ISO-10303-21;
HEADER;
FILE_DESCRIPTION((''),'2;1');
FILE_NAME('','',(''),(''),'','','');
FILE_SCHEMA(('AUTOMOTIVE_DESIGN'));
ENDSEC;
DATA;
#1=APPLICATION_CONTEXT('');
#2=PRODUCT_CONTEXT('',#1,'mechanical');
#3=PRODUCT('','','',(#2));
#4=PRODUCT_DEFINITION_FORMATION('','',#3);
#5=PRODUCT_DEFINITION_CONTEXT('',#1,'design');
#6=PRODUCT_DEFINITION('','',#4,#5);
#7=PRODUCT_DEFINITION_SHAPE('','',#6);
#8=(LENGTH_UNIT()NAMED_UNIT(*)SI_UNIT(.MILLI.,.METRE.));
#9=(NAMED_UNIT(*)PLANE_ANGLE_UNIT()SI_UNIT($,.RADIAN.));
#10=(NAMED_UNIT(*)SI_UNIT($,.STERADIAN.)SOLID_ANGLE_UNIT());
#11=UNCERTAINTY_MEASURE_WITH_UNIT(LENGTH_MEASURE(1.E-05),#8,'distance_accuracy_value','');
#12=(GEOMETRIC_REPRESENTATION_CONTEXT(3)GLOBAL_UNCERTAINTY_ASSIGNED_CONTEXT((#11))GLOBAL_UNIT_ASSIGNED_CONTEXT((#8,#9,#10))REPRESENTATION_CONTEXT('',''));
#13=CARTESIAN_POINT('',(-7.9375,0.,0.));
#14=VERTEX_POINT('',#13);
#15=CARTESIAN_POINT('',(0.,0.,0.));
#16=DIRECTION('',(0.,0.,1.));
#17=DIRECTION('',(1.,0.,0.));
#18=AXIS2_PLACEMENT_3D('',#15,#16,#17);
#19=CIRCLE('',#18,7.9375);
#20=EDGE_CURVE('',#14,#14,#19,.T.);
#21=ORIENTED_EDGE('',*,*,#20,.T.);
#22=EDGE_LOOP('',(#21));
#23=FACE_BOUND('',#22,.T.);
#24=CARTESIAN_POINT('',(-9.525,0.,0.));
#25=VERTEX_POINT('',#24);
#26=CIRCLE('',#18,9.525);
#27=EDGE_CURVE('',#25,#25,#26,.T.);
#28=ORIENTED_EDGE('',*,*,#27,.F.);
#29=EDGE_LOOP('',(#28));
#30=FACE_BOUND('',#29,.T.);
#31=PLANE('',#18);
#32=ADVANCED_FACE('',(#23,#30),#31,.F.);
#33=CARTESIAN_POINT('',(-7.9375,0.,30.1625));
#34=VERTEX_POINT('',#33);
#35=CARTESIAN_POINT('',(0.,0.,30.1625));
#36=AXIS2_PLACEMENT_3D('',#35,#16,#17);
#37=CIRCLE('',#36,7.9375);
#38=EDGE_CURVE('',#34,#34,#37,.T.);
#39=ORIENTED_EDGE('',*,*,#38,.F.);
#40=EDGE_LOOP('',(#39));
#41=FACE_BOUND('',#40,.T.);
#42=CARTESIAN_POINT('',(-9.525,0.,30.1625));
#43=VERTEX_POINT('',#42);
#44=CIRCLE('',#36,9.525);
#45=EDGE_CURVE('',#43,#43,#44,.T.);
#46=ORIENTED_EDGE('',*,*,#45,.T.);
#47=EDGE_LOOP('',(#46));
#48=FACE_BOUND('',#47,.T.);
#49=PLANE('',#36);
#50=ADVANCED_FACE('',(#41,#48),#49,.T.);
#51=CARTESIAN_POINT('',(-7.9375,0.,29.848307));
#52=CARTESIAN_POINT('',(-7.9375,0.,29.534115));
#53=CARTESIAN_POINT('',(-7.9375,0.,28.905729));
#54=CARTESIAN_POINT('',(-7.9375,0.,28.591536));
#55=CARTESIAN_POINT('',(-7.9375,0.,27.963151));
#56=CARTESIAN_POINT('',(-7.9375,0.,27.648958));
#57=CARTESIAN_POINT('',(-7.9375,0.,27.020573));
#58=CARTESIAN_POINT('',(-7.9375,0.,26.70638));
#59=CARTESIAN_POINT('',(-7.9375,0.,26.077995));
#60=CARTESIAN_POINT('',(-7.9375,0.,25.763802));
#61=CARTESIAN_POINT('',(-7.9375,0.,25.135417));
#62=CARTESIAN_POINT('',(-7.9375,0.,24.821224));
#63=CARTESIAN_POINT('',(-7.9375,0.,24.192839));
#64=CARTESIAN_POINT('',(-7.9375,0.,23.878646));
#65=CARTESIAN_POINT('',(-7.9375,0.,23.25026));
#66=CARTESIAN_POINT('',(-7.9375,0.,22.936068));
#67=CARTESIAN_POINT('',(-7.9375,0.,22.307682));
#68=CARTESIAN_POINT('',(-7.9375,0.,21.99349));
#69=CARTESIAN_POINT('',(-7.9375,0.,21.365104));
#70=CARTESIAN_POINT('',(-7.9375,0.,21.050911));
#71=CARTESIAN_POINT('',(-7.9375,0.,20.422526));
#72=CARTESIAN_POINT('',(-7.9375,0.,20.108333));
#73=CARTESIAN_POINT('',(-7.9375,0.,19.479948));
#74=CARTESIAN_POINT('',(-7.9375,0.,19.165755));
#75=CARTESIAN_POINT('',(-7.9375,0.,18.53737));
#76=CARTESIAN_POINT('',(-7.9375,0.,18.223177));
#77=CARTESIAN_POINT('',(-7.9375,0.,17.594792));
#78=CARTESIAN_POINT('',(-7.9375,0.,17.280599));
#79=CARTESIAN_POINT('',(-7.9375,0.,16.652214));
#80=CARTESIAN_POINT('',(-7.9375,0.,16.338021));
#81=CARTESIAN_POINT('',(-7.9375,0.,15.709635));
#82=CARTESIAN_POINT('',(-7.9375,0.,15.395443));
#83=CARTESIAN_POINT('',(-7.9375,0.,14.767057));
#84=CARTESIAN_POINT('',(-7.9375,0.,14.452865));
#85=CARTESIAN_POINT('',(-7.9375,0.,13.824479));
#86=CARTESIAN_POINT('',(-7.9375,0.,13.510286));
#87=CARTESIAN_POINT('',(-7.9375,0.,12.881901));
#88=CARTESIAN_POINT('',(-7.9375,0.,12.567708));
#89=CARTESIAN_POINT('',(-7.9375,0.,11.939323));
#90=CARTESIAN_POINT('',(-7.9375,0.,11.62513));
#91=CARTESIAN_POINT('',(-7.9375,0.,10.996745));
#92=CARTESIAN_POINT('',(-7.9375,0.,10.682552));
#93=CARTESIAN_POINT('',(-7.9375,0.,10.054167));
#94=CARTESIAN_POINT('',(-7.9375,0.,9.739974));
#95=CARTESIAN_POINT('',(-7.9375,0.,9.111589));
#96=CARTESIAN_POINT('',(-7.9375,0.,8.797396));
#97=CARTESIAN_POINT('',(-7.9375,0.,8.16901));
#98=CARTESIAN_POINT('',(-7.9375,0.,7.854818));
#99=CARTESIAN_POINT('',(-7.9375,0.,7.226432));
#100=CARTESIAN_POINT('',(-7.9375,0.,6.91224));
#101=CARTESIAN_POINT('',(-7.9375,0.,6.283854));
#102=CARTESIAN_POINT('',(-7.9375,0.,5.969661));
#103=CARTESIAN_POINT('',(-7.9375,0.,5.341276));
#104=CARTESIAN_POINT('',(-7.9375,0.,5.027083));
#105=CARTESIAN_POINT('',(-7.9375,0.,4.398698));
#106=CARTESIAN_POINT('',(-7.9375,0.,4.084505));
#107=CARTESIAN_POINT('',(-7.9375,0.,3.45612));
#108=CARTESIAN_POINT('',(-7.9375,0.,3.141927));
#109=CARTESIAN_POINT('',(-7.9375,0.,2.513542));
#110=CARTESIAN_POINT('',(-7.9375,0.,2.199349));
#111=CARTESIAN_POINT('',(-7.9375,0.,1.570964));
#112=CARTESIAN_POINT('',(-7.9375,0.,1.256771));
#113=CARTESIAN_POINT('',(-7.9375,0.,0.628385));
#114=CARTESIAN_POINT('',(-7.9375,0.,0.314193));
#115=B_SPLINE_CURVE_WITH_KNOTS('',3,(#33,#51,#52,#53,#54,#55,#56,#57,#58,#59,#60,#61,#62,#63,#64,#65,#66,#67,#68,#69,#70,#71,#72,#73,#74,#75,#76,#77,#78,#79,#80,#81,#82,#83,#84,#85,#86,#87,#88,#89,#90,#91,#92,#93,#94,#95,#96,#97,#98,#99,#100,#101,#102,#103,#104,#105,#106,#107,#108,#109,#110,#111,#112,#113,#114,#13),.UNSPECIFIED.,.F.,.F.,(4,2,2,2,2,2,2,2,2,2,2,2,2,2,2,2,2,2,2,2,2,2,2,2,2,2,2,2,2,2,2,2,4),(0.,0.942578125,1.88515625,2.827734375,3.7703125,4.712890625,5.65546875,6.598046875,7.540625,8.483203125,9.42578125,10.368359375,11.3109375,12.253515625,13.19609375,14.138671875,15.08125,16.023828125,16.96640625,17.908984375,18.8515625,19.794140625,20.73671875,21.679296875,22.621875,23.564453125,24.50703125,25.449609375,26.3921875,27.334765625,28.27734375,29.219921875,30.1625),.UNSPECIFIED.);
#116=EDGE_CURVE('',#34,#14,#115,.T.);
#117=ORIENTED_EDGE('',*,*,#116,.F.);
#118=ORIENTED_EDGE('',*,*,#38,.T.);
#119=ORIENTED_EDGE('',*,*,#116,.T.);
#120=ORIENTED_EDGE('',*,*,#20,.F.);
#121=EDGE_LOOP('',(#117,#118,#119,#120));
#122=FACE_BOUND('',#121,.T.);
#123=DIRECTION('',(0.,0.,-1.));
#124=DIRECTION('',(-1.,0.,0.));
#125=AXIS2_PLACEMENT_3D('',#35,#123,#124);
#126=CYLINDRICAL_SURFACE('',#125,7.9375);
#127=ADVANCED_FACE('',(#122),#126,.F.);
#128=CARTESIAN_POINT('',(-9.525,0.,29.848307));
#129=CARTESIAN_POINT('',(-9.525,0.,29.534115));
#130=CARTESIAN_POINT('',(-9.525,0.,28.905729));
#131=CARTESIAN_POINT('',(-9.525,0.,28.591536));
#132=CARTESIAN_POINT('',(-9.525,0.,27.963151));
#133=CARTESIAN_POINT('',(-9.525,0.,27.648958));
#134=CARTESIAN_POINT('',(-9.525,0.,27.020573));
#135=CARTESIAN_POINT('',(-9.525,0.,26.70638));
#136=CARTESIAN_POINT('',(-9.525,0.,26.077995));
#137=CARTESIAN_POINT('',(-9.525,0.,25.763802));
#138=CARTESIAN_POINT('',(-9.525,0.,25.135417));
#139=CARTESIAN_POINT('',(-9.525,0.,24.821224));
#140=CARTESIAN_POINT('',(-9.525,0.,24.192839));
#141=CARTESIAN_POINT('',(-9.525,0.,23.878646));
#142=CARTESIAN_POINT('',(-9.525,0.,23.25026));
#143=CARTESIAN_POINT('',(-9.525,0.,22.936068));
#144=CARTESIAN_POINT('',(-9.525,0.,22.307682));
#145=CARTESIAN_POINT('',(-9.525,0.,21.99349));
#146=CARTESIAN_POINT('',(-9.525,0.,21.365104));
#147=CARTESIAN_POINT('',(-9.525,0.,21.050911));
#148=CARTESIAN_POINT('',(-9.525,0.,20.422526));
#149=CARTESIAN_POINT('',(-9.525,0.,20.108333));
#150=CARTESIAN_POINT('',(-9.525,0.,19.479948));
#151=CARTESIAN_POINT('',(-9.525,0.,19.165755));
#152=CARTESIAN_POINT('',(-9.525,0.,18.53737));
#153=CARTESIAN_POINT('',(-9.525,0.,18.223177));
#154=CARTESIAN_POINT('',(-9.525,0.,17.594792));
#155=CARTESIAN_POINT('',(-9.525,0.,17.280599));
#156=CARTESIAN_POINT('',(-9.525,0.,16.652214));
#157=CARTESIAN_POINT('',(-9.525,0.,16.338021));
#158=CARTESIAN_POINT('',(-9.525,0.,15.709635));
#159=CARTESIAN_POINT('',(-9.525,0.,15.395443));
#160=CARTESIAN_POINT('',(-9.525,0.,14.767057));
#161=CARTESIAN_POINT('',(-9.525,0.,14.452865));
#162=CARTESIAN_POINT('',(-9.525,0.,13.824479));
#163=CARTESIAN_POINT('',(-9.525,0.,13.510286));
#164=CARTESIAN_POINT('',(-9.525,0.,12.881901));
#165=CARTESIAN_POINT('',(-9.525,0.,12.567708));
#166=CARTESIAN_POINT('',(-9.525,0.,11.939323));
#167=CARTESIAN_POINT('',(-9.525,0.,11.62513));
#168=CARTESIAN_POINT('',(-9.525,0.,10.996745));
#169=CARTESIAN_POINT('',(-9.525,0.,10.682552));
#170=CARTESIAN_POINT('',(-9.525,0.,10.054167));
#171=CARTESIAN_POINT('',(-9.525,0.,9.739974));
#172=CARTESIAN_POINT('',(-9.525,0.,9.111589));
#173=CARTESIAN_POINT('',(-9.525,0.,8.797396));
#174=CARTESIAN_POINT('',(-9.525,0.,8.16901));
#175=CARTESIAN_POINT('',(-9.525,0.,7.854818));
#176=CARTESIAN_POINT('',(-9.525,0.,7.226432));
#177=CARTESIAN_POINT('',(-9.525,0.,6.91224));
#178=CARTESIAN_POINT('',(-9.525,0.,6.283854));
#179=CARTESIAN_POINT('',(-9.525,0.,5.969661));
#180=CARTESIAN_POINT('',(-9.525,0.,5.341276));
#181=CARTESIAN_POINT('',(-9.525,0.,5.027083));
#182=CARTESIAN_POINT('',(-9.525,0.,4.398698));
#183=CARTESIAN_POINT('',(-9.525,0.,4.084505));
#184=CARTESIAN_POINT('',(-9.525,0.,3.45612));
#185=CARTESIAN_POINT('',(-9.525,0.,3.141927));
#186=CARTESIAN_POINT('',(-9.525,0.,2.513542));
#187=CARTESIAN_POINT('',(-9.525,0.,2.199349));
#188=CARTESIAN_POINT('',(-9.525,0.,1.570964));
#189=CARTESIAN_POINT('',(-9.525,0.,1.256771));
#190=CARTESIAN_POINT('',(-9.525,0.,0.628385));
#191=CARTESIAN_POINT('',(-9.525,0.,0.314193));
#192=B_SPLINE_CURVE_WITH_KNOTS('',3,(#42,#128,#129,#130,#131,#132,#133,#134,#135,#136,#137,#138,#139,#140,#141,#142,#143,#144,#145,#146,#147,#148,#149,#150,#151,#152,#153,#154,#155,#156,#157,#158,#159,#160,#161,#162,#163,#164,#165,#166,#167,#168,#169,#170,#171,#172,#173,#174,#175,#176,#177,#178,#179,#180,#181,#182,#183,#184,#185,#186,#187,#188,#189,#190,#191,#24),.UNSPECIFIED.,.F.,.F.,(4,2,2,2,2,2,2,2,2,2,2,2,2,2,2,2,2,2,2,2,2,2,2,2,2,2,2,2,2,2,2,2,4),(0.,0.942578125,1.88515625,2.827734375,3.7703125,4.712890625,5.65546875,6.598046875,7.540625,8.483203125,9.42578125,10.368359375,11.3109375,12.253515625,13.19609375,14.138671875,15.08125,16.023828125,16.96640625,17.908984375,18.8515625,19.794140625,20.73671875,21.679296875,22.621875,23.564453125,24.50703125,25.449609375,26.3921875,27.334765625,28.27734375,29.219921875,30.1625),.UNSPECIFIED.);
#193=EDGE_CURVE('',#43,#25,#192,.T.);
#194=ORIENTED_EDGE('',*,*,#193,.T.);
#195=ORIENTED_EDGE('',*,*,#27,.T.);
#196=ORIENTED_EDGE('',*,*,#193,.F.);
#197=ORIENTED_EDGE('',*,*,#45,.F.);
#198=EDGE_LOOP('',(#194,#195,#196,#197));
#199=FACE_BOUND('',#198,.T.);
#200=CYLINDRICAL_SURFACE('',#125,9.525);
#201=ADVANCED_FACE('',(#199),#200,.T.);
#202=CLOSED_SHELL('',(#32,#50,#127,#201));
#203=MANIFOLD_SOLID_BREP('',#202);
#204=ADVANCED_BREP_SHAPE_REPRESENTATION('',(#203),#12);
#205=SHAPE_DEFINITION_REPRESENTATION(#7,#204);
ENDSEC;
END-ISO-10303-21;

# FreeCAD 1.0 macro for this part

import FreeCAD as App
import Part
import Sketcher
from FreeCAD import Vector
Q = App.Units.Quantity

doc = App.newDocument("Part")
params = doc.addObject("Spreadsheet::Sheet", "Params")
for row, (alias, value) in enumerate([
    ("sketch1_diameter", "0.75 in"),
    ("sketch1_diameter2", "0.625 in"),
    ("pad1_length", "1.1875 in"),
], start=1):
    params.set(f"A{row}", alias)
    params.set(f"B{row}", "=" + value)
    params.setAlias(f"B{row}", alias)

body = doc.addObject("PartDesign::Body", "Body")

sketch1 = doc.addObject("Sketcher::SketchObject", "Sketch")
body.addObject(sketch1)
sketch1.AttachmentSupport = (doc.XY_Plane, [""])
sketch1.MapMode = "FlatFace"
sketch1.addGeometry(Part.Circle(Vector(0, 0, 0), Vector(0, 0, 1), 10), False)
sketch1.addGeometry(Part.Circle(Vector(0, 0, 0), Vector(0, 0, 1), 8), False)
sketch1.addConstraint(Sketcher.Constraint("Coincident", 0, 3, -1, 1))
sketch1.addConstraint(Sketcher.Constraint("Coincident", 1, 3, -1, 1))
sketch1.addConstraint(Sketcher.Constraint("Diameter", 0, Q("0.75 in")))
sketch1.addConstraint(Sketcher.Constraint("Diameter", 1, Q("0.625 in")))
sketch1.setExpression("Constraints[2]", "Params.sketch1_diameter")
sketch1.setExpression("Constraints[3]", "Params.sketch1_diameter2")
pad1 = doc.addObject("PartDesign::Pad", "Pad")
body.addObject(pad1)
pad1.Profile = sketch1
pad1.setExpression("Length", "Params.pad1_length")

doc.recompute()
